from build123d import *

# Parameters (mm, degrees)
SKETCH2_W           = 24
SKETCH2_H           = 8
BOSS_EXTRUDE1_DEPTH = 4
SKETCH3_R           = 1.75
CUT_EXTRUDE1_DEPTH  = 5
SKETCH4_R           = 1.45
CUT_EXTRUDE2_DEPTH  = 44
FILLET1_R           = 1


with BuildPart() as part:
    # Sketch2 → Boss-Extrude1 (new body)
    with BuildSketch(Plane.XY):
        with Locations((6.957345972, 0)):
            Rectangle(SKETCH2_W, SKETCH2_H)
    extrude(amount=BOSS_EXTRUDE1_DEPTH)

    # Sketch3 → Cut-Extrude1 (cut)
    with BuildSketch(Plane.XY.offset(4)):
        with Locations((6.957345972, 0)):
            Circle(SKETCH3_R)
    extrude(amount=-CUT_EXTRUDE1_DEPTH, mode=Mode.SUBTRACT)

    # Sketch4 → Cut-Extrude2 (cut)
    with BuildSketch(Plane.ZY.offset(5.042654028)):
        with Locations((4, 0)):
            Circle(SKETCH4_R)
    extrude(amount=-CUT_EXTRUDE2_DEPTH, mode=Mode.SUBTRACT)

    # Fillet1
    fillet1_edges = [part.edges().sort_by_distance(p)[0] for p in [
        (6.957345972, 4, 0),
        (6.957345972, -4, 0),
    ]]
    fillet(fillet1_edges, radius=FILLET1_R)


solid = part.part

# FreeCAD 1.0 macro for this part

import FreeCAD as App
import Part
import Sketcher
Q = App.Units.Quantity


def edges_at(feature, points):
    """Names of the edges that pass closest to the given points."""
    edges = feature.Shape.Edges
    near = lambda p: min(range(len(edges)), key=lambda i: edges[i].distToShape(Part.Vertex(*p))[0])
    return sorted({f"Edge{near(p) + 1}" for p in points})

doc = App.newDocument("Part")
body = doc.addObject("PartDesign::Body", "Body")

sketch1 = body.newObject("Sketcher::SketchObject", "Sketch")
sketch1.AttachmentSupport = (doc.getObject("XY_Plane"), [""])
sketch1.MapMode = "FlatFace"
sketch1.addGeometry([
    Part.LineSegment(App.Vector(-5, 4, 0), App.Vector(-5, -4, 0)),
    Part.LineSegment(App.Vector(-5, -4, 0), App.Vector(19, -4, 0)),
    Part.LineSegment(App.Vector(19, -4, 0), App.Vector(19, 4, 0)),
    Part.LineSegment(App.Vector(19, 4, 0), App.Vector(-5, 4, 0)),
], False)
sketch1.addConstraint([
    Sketcher.Constraint("Coincident", 0, 2, 1, 1),
    Sketcher.Constraint("Coincident", 1, 2, 2, 1),
    Sketcher.Constraint("Coincident", 2, 2, 3, 1),
    Sketcher.Constraint("Coincident", 3, 2, 0, 1),
    Sketcher.Constraint("Vertical", 0),
    Sketcher.Constraint("Horizontal", 1),
    Sketcher.Constraint("Vertical", 2),
    Sketcher.Constraint("Horizontal", 3),
    Sketcher.Constraint("DistanceX", 1, 1, 1, 2, Q("24 mm")),
    Sketcher.Constraint("DistanceY", 0, 2, 0, 1, Q("8 mm")),
    Sketcher.Constraint("DistanceY", 0, 2, -1, 1, Q("4 mm")),
    Sketcher.Constraint("DistanceX", 0, 2, -1, 1, Q("5.042654 mm")),
])
pad1 = body.newObject("PartDesign::Pad", "Pad")
pad1.Profile = sketch1
pad1.Length = 4

sketch2 = body.newObject("Sketcher::SketchObject", "Sketch001")
sketch2.AttachmentSupport = (doc.getObject("XY_Plane"), [""])
sketch2.MapMode = "FlatFace"
sketch2.AttachmentOffset = App.Placement(App.Vector(0, 0, 4), App.Rotation())
sketch2.addGeometry(Part.Circle(App.Vector(7, 0, 0), App.Vector(0, 0, 1), 1.8), False)
sketch2.addConstraint([
    Sketcher.Constraint("PointOnObject", 0, 3, -1),
    Sketcher.Constraint("Diameter", 0, Q("3.5 mm")),
    Sketcher.Constraint("DistanceX", -1, 1, 0, 3, Q("6.957346 mm")),
])
pocket1 = body.newObject("PartDesign::Pocket", "Pocket")
pocket1.Profile = sketch2
pocket1.Length = 5

sketch3 = body.newObject("Sketcher::SketchObject", "Sketch002")
sketch3.AttachmentSupport = (doc.getObject("YZ_Plane"), [""])
sketch3.MapMode = "FlatFace"
sketch3.AttachmentOffset = App.Placement(App.Vector(0, 0, -5.042654), App.Rotation())
sketch3.addGeometry(Part.Circle(App.Vector(0, 4, 0), App.Vector(0, 0, 1), 1.4), False)
sketch3.addConstraint([
    Sketcher.Constraint("PointOnObject", 0, 3, -2),
    Sketcher.Constraint("Diameter", 0, Q("2.9 mm")),
    Sketcher.Constraint("DistanceY", -1, 1, 0, 3, Q("4 mm")),
])
pocket2 = body.newObject("PartDesign::Pocket", "Pocket001")
pocket2.Profile = sketch3
pocket2.Length = 44
pocket2.Reversed = True
doc.recompute()

fillet = body.newObject("PartDesign::Fillet", "Fillet")
fillet.Base = (pocket2, edges_at(pocket2, [(6.957, 4, 0), (6.957, -4, 0)]))
fillet.Radius = 1

doc.recompute()
